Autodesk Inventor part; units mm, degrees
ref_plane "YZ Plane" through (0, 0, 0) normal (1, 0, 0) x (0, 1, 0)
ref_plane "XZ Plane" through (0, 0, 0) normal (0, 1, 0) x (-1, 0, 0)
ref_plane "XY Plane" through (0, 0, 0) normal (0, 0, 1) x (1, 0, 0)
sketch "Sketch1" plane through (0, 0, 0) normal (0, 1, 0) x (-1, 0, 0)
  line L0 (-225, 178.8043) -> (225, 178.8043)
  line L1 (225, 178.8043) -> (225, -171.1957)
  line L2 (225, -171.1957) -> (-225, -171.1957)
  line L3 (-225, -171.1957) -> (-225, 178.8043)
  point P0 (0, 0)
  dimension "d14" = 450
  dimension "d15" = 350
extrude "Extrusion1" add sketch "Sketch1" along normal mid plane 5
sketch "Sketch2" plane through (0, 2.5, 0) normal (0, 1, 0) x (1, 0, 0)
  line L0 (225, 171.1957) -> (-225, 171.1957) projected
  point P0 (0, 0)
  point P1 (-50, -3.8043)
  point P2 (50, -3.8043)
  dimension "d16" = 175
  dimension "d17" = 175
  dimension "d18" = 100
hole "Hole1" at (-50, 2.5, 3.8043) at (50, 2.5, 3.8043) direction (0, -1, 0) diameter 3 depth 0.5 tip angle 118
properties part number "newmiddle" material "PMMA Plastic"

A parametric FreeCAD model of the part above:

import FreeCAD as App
import Part
import Sketcher
from FreeCAD import Vector
Q = App.Units.Quantity

doc = App.newDocument("Part")
body = doc.addObject("PartDesign::Body", "Body")

sketch1 = body.newObject("Sketcher::SketchObject", "Sketch")
sketch1.AttachmentSupport = (doc.getObject("XZ_Plane"), [""])
sketch1.MapMode = "FlatFace"
sketch1.addGeometry([
    Part.LineSegment(Vector(-225, 178.8043, 0), Vector(225, 178.8043, 0)),
    Part.LineSegment(Vector(225, 178.8043, 0), Vector(225, -171.1957, 0)),
    Part.LineSegment(Vector(225, -171.1957, 0), Vector(-225, -171.1957, 0)),
    Part.LineSegment(Vector(-225, -171.1957, 0), Vector(-225, 178.8043, 0)),
], False)
sketch1.addConstraint([
    Sketcher.Constraint("Coincident", 0, 2, 1, 1),
    Sketcher.Constraint("Coincident", 1, 2, 2, 1),
    Sketcher.Constraint("Coincident", 2, 2, 3, 1),
    Sketcher.Constraint("Coincident", 3, 2, 0, 1),
    Sketcher.Constraint("Horizontal", 0),
    Sketcher.Constraint("Vertical", 1),
    Sketcher.Constraint("Horizontal", 2),
    Sketcher.Constraint("Vertical", 3),
    Sketcher.Constraint("DistanceX", 0, 1, 0, 2, Q("450 mm")),
    Sketcher.Constraint("DistanceY", 1, 2, 1, 1, Q("350 mm")),
    Sketcher.Constraint("DistanceX", -1, 1, 0, 2, Q("225 mm")),
    Sketcher.Constraint("DistanceY", -1, 1, 0, 2, Q("178.8043 mm")),
])
pad1 = body.newObject("PartDesign::Pad", "Pad")
pad1.Profile = sketch1
pad1.Length = 5
pad1.Midplane = True

sketch2 = body.newObject("Sketcher::SketchObject", "Sketch001")
sketch2.AttachmentSupport = (doc.getObject("XZ_Plane"), [""])
sketch2.MapMode = "FlatFace"
sketch2.AttachmentOffset = App.Placement(Vector(0, 0, -2.5), App.Rotation())
sketch2.addGeometry([
    Part.Circle(Vector(-50, 3.8043, 0), Vector(0, 0, 1), 1.5),
    Part.Circle(Vector(50, 3.8043, 0), Vector(0, 0, 1), 1.5),
], False)
sketch2.addConstraint([
    Sketcher.Constraint("Equal", 0, 1),
    Sketcher.Constraint("Symmetric", 0, 3, 1, 3, -2),
    Sketcher.Constraint("Diameter", 0, Q("3 mm")),
    Sketcher.Constraint("DistanceX", 0, 3, -1, 1, Q("50 mm")),
    Sketcher.Constraint("DistanceY", -1, 1, 0, 3, Q("3.8043 mm")),
])
doc.recompute()
hole = body.newObject("PartDesign::Hole", "Hole")
hole.Profile = sketch2
hole.ThreadType = "None"
hole.Diameter = 3
hole.DepthType = "Dimension"
hole.Depth = 0.5
hole.DrillPoint = "Angled"
hole.DrillPointAngle = 118
hole.Reversed = True

doc.recompute()
